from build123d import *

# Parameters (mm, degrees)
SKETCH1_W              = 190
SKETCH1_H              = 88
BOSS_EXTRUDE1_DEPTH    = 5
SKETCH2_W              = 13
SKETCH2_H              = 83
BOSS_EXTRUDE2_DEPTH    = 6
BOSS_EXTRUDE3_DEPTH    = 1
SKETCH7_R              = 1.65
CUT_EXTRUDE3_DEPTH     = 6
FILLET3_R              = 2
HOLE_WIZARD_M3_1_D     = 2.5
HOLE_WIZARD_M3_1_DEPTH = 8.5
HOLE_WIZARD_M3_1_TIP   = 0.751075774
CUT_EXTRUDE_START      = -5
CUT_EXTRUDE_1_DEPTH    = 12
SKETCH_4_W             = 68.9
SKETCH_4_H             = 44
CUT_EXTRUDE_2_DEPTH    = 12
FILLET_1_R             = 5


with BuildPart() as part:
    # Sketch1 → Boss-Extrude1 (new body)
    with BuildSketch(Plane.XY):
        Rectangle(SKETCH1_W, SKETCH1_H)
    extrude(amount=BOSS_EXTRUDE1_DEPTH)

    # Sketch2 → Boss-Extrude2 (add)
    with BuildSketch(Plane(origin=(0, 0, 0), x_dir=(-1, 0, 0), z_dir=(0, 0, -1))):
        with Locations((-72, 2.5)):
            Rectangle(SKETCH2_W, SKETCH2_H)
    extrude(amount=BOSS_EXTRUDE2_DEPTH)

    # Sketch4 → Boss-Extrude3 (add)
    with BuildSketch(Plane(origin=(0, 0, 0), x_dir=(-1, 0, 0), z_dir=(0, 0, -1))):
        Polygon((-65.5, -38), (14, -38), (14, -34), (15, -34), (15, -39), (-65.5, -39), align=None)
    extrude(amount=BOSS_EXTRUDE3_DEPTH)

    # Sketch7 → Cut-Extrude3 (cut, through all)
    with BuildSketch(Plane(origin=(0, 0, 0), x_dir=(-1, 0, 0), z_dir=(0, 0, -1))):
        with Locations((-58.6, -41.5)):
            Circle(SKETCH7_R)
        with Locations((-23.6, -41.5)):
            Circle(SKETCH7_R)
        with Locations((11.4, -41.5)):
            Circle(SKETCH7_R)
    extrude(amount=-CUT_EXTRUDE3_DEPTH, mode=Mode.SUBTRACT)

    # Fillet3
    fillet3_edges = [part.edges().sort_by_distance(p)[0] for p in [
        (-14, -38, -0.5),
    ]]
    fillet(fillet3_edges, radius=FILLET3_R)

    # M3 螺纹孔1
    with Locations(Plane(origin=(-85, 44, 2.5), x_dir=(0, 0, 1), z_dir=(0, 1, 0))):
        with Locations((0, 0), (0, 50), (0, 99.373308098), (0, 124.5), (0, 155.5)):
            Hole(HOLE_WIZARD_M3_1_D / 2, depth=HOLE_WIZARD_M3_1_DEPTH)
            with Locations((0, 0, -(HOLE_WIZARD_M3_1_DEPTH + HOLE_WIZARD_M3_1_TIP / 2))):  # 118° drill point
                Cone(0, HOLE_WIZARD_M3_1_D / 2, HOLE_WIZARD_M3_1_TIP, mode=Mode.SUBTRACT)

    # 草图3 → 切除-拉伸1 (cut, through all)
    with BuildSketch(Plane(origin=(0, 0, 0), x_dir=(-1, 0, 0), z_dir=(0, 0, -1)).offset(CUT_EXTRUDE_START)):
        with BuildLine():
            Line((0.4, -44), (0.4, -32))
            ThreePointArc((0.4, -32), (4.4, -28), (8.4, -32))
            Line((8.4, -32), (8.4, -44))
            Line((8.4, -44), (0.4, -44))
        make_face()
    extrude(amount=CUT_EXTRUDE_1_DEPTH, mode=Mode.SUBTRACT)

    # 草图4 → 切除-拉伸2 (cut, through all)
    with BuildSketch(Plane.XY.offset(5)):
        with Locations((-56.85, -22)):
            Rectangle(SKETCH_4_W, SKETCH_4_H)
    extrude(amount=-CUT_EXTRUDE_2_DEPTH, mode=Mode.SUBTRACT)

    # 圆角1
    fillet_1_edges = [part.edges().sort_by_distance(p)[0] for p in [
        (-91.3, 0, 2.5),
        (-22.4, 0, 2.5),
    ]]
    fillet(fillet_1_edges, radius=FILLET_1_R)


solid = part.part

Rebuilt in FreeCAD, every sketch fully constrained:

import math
import FreeCAD as App
import Part
import Sketcher


def edges_at(feature, points):
    """Names of the edges that pass closest to the given points."""
    edges = feature.Shape.Edges
    near = lambda p: min(range(len(edges)), key=lambda i: edges[i].distToShape(Part.Vertex(*p))[0])
    return sorted({f"Edge{near(p) + 1}" for p in points})


def add_polygon(sketch, points):
    """Adds a closed chain of lines whose ends are joined by coincident constraints."""
    first, n = sketch.GeometryCount, len(points)
    for a, b in zip(points, points[1:] + points[:1]):
        sketch.addGeometry(Part.LineSegment(App.Vector(*a, 0), App.Vector(*b, 0)), False)
    for i in range(n):
        sketch.addConstraint(Sketcher.Constraint("Coincident", first + i, 2, first + (i + 1) % n, 1))

doc = App.newDocument("Part")
params = doc.addObject("Spreadsheet::Sheet", "Params")
for row, (alias, value) in enumerate([
    ("sketch1_width", "190 mm"),
    ("sketch1_height", "88 mm"),
    ("pad1_length", "5 mm"),
    ("sketch2_width", "13 mm"),
    ("sketch2_height", "83 mm"),
    ("pad2_length", "6 mm"),
    ("sketch3_width", "1 mm"),
    ("sketch3_height", "5 mm"),
    ("sketch3_width2", "79.5 mm"),
    ("pad3_length", "1 mm"),
    ("sketch4_diameter", "3.3 mm"),
    ("fillet_radius", "2 mm"),
    ("sketch5_diameter", "2.5 mm"),
    ("hole_diameter", "2.5 mm"),
    ("hole_depth", "8.5 mm"),
    ("sketch6_radius", "4 mm"),
    ("sketch6_height", "12 mm"),
    ("sketch7_height", "44 mm"),
    ("sketch7_width", "68.9 mm"),
    ("fillet2_radius", "5 mm"),
], start=1):
    params.set(f"A{row}", alias)
    params.set(f"B{row}", "=" + value)
    params.setAlias(f"B{row}", alias)

body = doc.addObject("PartDesign::Body", "Body")

# Sketch on XY plane
sketch1 = doc.addObject("Sketcher::SketchObject", "Sketch")
body.addObject(sketch1)
sketch1.AttachmentSupport = (doc.XY_Plane, [""])
sketch1.MapMode = "FlatFace"
add_polygon(sketch1, [(-95, 44), (-95, -44), (95, -44), (95, 44)])  # lines 0-3
sketch1.addConstraint([
    Sketcher.Constraint("Vertical", 0),
    Sketcher.Constraint("Horizontal", 1),
    Sketcher.Constraint("Vertical", 2),
    Sketcher.Constraint("Horizontal", 3),
    Sketcher.Constraint("Symmetric", 0, 2, 2, 2, -1, 1),
    Sketcher.Constraint("DistanceX", 1, 1, 1, 2, 190.0),
    Sketcher.Constraint("DistanceY", 0, 2, 0, 1, 88.0),
])
sketch1.setExpression("Constraints[9]", "Params.sketch1_width")
sketch1.setExpression("Constraints[10]", "Params.sketch1_height")
pad1 = doc.addObject("PartDesign::Pad", "Pad")
body.addObject(pad1)
pad1.Profile = sketch1
pad1.setExpression("Length", "Params.pad1_length")

# Sketch on XY plane
sketch2 = doc.addObject("Sketcher::SketchObject", "Sketch001")
body.addObject(sketch2)
sketch2.AttachmentSupport = (doc.XY_Plane, [""])
sketch2.MapMode = "FlatFace"
add_polygon(sketch2, [(78.5, 44), (78.5, -39), (65.5, -39), (65.5, 44)])  # lines 0-3
sketch2.addConstraint([
    Sketcher.Constraint("Vertical", 0),
    Sketcher.Constraint("Horizontal", 1),
    Sketcher.Constraint("Vertical", 2),
    Sketcher.Constraint("Horizontal", 3),
    Sketcher.Constraint("DistanceX", 1, 2, 1, 1, 13.0),
    Sketcher.Constraint("DistanceY", 0, 2, 0, 1, 83.0),
    Sketcher.Constraint("DistanceY", 0, 2, -1, 1, 39.0),
    Sketcher.Constraint("DistanceX", -1, 1, 0, 2, 78.5),
])
sketch2.setExpression("Constraints[8]", "Params.sketch2_width")
sketch2.setExpression("Constraints[9]", "Params.sketch2_height")
pad2 = doc.addObject("PartDesign::Pad", "Pad001")
body.addObject(pad2)
pad2.Profile = sketch2
pad2.setExpression("Length", "Params.pad2_length")
pad2.Reversed = True

# Sketch on XY plane
sketch3 = doc.addObject("Sketcher::SketchObject", "Sketch002")
body.addObject(sketch3)
sketch3.AttachmentSupport = (doc.XY_Plane, [""])
sketch3.MapMode = "FlatFace"
add_polygon(sketch3, [(-14, -38), (65.5, -38), (65.5, -39), (-15, -39), (-15, -34), (-14, -34)])  # lines 0-5
sketch3.addConstraint([
    Sketcher.Constraint("Horizontal", 0),
    Sketcher.Constraint("Vertical", 1),
    Sketcher.Constraint("Horizontal", 2),
    Sketcher.Constraint("Vertical", 3),
    Sketcher.Constraint("Horizontal", 4),
    Sketcher.Constraint("Vertical", 5),
    Sketcher.Constraint("Equal", 4, 1),
    Sketcher.Constraint("DistanceX", 4, 1, 4, 2, 1.0),
    Sketcher.Constraint("DistanceY", 3, 1, 3, 2, 5.0),
    Sketcher.Constraint("DistanceX", 0, 1, 0, 2, 79.5),
    Sketcher.Constraint("DistanceY", 0, 2, -1, 1, 38.0),
    Sketcher.Constraint("DistanceX", 2, 2, -1, 1, 15.0),
])
sketch3.setExpression("Constraints[13]", "Params.sketch3_width")
sketch3.setExpression("Constraints[14]", "Params.sketch3_height")
sketch3.setExpression("Constraints[15]", "Params.sketch3_width2")
pad3 = doc.addObject("PartDesign::Pad", "Pad002")
body.addObject(pad3)
pad3.Profile = sketch3
pad3.setExpression("Length", "Params.pad3_length")
pad3.Reversed = True

# Sketch on XY plane
sketch4 = doc.addObject("Sketcher::SketchObject", "Sketch003")
body.addObject(sketch4)
sketch4.AttachmentSupport = (doc.XY_Plane, [""])
sketch4.MapMode = "FlatFace"
sketch4.addGeometry([
    Part.Circle(App.Vector(58.6, -41.5, 0), App.Vector(0, 0, 1), 1.65),
    Part.Circle(App.Vector(23.6, -41.5, 0), App.Vector(0, 0, 1), 1.65),
    Part.Circle(App.Vector(-11.4, -41.5, 0), App.Vector(0, 0, 1), 1.65),
], False)
sketch4.addConstraint([
    Sketcher.Constraint("Equal", 0, 1),
    Sketcher.Constraint("Equal", 1, 2),
    Sketcher.Constraint("Horizontal", 0, 3, 1, 3),
    Sketcher.Constraint("Horizontal", 1, 3, 2, 3),
    Sketcher.Constraint("Diameter", 0, 3.3),
    Sketcher.Constraint("DistanceX", 1, 3, 0, 3, 35.0),
    Sketcher.Constraint("DistanceX", 2, 3, 1, 3, 35.0),
    Sketcher.Constraint("DistanceX", -1, 1, 0, 3, 58.6),
    Sketcher.Constraint("DistanceY", 0, 3, -1, 1, 41.5),
])
sketch4.setExpression("Constraints[4]", "Params.sketch4_diameter")
pocket1 = doc.addObject("PartDesign::Pocket", "Pocket")
body.addObject(pocket1)
pocket1.Profile = sketch4
pocket1.Type = "ThroughAll"
pocket1.Reversed = True
doc.recompute()

fillet = doc.addObject("PartDesign::Fillet", "Fillet")
body.addObject(fillet)
fillet.Base = (pocket1, edges_at(pocket1, [(-14, -38, -0.5)]))
fillet.setExpression("Radius", "Params.fillet_radius")

# Sketch on XZ plane
sketch5 = doc.addObject("Sketcher::SketchObject", "Sketch004")
body.addObject(sketch5)
sketch5.AttachmentSupport = (doc.XZ_Plane, [""])
sketch5.MapMode = "FlatFace"
sketch5.AttachmentOffset = App.Placement(App.Vector(0, 0, -44), App.Rotation())
sketch5.addGeometry([
    Part.Circle(App.Vector(-85, 2.5, 0), App.Vector(0, 0, 1), 1.25),  # 0
    Part.Circle(App.Vector(-35, 2.5, 0), App.Vector(0, 0, 1), 1.25),  # 1
    Part.Circle(App.Vector(14.373308, 2.5, 0), App.Vector(0, 0, 1), 1.25),  # 2
    Part.Circle(App.Vector(39.5, 2.5, 0), App.Vector(0, 0, 1), 1.25),  # 3
    Part.Circle(App.Vector(70.5, 2.5, 0), App.Vector(0, 0, 1), 1.25),  # 4
], False)
sketch5.addConstraint([
    Sketcher.Constraint("Equal", 0, 1),
    Sketcher.Constraint("Equal", 1, 2),
    Sketcher.Constraint("Equal", 2, 3),
    Sketcher.Constraint("Equal", 3, 4),
    Sketcher.Constraint("Horizontal", 0, 3, 1, 3),
    Sketcher.Constraint("Horizontal", 1, 3, 2, 3),
    Sketcher.Constraint("Horizontal", 2, 3, 3, 3),
    Sketcher.Constraint("Horizontal", 3, 3, 4, 3),
    Sketcher.Constraint("Diameter", 0, 2.5),
    Sketcher.Constraint("DistanceX", 0, 3, -1, 1, 85.0),
    Sketcher.Constraint("DistanceX", 1, 3, -1, 1, 35.0),
    Sketcher.Constraint("DistanceX", 3, 3, 4, 3, 31.0),
    Sketcher.Constraint("DistanceY", -1, 1, 0, 3, 2.5),
    Sketcher.Constraint("DistanceX", -1, 1, 3, 3, 39.5),
    Sketcher.Constraint("DistanceX", -1, 1, 2, 3, 14.373308),
])
sketch5.setExpression("Constraints[8]", "Params.sketch5_diameter")
doc.recompute()
hole = doc.addObject("PartDesign::Hole", "Hole")
body.addObject(hole)
hole.Profile = sketch5
hole.ThreadType = "None"
hole.setExpression("Diameter", "Params.hole_diameter")
hole.DepthType = "Dimension"
hole.setExpression("Depth", "Params.hole_depth")
hole.DrillPoint = "Angled"
hole.DrillPointAngle = 118
hole.Reversed = True

# Sketch on XY plane
sketch6 = doc.addObject("Sketcher::SketchObject", "Sketch005")
body.addObject(sketch6)
sketch6.AttachmentSupport = (doc.XY_Plane, [""])
sketch6.MapMode = "FlatFace"
sketch6.AttachmentOffset = App.Placement(App.Vector(0, 0, 5), App.Rotation())
sketch6.addGeometry([
    Part.LineSegment(App.Vector(-0.4, -32, 0), App.Vector(-0.4, -44, 0)),
    Part.LineSegment(App.Vector(-0.4, -44, 0), App.Vector(-8.4, -44, 0)),
    Part.LineSegment(App.Vector(-8.4, -44, 0), App.Vector(-8.4, -32, 0)),
    Part.ArcOfCircle(Part.Circle(App.Vector(-4.4, -32, 0), App.Vector(0, 0, 1), 4), math.radians(0), math.radians(180)),
], False)
sketch6.addConstraint([
    Sketcher.Constraint("Coincident", 0, 2, 1, 1),
    Sketcher.Constraint("Coincident", 1, 2, 2, 1),
    Sketcher.Constraint("Tangent", 2, 2, 3, 2),
    Sketcher.Constraint("Tangent", 3, 1, 0, 1),
    Sketcher.Constraint("Vertical", 0),
    Sketcher.Constraint("Horizontal", 1),
    Sketcher.Constraint("Vertical", 2),
    Sketcher.Constraint("Radius", 3, 4.0),
    Sketcher.Constraint("DistanceY", 0, 2, 0, 1, 12.0),
    Sketcher.Constraint("DistanceY", 3, 3, -1, 1, 32.0),
    Sketcher.Constraint("DistanceX", 3, 3, -1, 1, 4.4),
])
sketch6.setExpression("Constraints[7]", "Params.sketch6_radius")
sketch6.setExpression("Constraints[8]", "Params.sketch6_height")
pocket2 = doc.addObject("PartDesign::Pocket", "Pocket001")
body.addObject(pocket2)
pocket2.Profile = sketch6
pocket2.Type = "ThroughAll"

# Sketch on XY plane
sketch7 = doc.addObject("Sketcher::SketchObject", "Sketch006")
body.addObject(sketch7)
sketch7.AttachmentSupport = (doc.XY_Plane, [""])
sketch7.MapMode = "FlatFace"
sketch7.AttachmentOffset = App.Placement(App.Vector(0, 0, 5), App.Rotation())
add_polygon(sketch7, [(-91.3, 0), (-91.3, -44), (-22.4, -44), (-22.4, 0)])  # lines 0-3
sketch7.addConstraint([
    Sketcher.Constraint("Vertical", 0),
    Sketcher.Constraint("Horizontal", 1),
    Sketcher.Constraint("Vertical", 2),
    Sketcher.Constraint("Horizontal", 3),
    Sketcher.Constraint("PointOnObject", 2, 2, -1),
    Sketcher.Constraint("DistanceY", 0, 2, 0, 1, 44.0),
    Sketcher.Constraint("DistanceX", 1, 1, 1, 2, 68.9),
    Sketcher.Constraint("DistanceX", 0, 2, -1, 1, 91.3),
])
sketch7.setExpression("Constraints[9]", "Params.sketch7_height")
sketch7.setExpression("Constraints[10]", "Params.sketch7_width")
pocket3 = doc.addObject("PartDesign::Pocket", "Pocket002")
body.addObject(pocket3)
pocket3.Profile = sketch7
pocket3.Type = "ThroughAll"
doc.recompute()

fillet2 = doc.addObject("PartDesign::Fillet", "Fillet001")
body.addObject(fillet2)
fillet2.Base = (pocket3, edges_at(pocket3, [(-91.3, 0, 2.5), (-22.4, 0, 2.5)]))
fillet2.setExpression("Radius", "Params.fillet2_radius")

doc.recompute()
